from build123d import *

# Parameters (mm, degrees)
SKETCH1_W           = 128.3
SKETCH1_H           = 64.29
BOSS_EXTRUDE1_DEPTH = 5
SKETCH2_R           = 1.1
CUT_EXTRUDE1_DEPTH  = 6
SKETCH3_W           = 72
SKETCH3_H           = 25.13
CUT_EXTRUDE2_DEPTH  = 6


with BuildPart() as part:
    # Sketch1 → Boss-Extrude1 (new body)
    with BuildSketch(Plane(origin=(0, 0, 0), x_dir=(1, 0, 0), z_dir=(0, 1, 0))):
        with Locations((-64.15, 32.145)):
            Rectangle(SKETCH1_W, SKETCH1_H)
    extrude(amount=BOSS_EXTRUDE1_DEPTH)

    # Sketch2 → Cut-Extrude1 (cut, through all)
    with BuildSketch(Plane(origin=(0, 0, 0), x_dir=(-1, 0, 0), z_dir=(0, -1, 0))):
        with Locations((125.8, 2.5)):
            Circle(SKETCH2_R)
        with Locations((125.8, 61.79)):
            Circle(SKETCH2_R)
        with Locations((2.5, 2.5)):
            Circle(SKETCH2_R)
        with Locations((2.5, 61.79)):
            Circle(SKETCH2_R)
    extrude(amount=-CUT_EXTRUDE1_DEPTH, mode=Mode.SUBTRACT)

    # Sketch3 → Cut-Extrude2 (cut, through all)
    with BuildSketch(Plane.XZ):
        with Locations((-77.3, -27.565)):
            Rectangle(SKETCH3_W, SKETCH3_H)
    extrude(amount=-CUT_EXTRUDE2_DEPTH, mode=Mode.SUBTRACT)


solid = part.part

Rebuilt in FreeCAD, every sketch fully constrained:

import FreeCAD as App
import Part
import Sketcher


def add_polygon(sketch, points):
    """Adds a closed chain of lines whose ends are joined by coincident constraints."""
    first, n = sketch.GeometryCount, len(points)
    for a, b in zip(points, points[1:] + points[:1]):
        sketch.addGeometry(Part.LineSegment(App.Vector(*a, 0), App.Vector(*b, 0)), False)
    for i in range(n):
        sketch.addConstraint(Sketcher.Constraint("Coincident", first + i, 2, first + (i + 1) % n, 1))

doc = App.newDocument("Part")
body = doc.addObject("PartDesign::Body", "Body")

sketch1 = body.newObject("Sketcher::SketchObject", "Sketch")
sketch1.AttachmentSupport = (doc.getObject("XZ_Plane"), [""])
sketch1.MapMode = "FlatFace"
add_polygon(sketch1, [(-128, -64), (-128, 0), (0, 0), (0, -64)])
sketch1.addConstraint(Sketcher.Constraint("Vertical", 0))
sketch1.addConstraint(Sketcher.Constraint("Horizontal", 1))
sketch1.addConstraint(Sketcher.Constraint("Vertical", 2))
sketch1.addConstraint(Sketcher.Constraint("Horizontal", 3))
sketch1.addConstraint(Sketcher.Constraint("Coincident", 1, 2, -1, 1))
sketch1.addConstraint(Sketcher.Constraint("DistanceX", 1, 1, 1, 2, 128.3))
sketch1.addConstraint(Sketcher.Constraint("DistanceY", 0, 1, 0, 2, 64.29))
pad1 = body.newObject("PartDesign::Pad", "Pad")
pad1.Profile = sketch1
pad1.Length = 5
pad1.Reversed = True

sketch2 = body.newObject("Sketcher::SketchObject", "Sketch001")
sketch2.AttachmentSupport = (doc.getObject("XZ_Plane"), [""])
sketch2.MapMode = "FlatFace"
sketch2.addGeometry(Part.Circle(App.Vector(-125.8, -2.5, 0), App.Vector(0, 0, 1), 1.1), False)
sketch2.addGeometry(Part.Circle(App.Vector(-125.8, -61.8, 0), App.Vector(0, 0, 1), 1.1), False)
sketch2.addGeometry(Part.Circle(App.Vector(-2.5, -2.5, 0), App.Vector(0, 0, 1), 1.1), False)
sketch2.addGeometry(Part.Circle(App.Vector(-2.5, -61.8, 0), App.Vector(0, 0, 1), 1.1), False)
sketch2.addConstraint(Sketcher.Constraint("Equal", 0, 1))
sketch2.addConstraint(Sketcher.Constraint("Equal", 1, 2))
sketch2.addConstraint(Sketcher.Constraint("Equal", 2, 3))
sketch2.addConstraint(Sketcher.Constraint("Horizontal", 0, 3, 2, 3))
sketch2.addConstraint(Sketcher.Constraint("Horizontal", 1, 3, 3, 3))
sketch2.addConstraint(Sketcher.Constraint("Vertical", 0, 3, 1, 3))
sketch2.addConstraint(Sketcher.Constraint("Vertical", 2, 3, 3, 3))
sketch2.addConstraint(Sketcher.Constraint("Diameter", 0, 2.2))
sketch2.addConstraint(Sketcher.Constraint("DistanceX", 0, 3, -1, 1, 125.8))
sketch2.addConstraint(Sketcher.Constraint("DistanceY", 0, 3, -1, 1, 2.5))
sketch2.addConstraint(Sketcher.Constraint("DistanceX", 2, 3, -1, 1, 2.5))
sketch2.addConstraint(Sketcher.Constraint("DistanceY", 1, 3, -1, 1, 61.79))
pocket1 = body.newObject("PartDesign::Pocket", "Pocket")
pocket1.Profile = sketch2
pocket1.Type = "ThroughAll"

sketch3 = body.newObject("Sketcher::SketchObject", "Sketch002")
sketch3.AttachmentSupport = (doc.getObject("XZ_Plane"), [""])
sketch3.MapMode = "FlatFace"
add_polygon(sketch3, [(-113, -15), (-113, -40), (-41, -40), (-41, -15)])
sketch3.addConstraint(Sketcher.Constraint("Vertical", 0))
sketch3.addConstraint(Sketcher.Constraint("Horizontal", 1))
sketch3.addConstraint(Sketcher.Constraint("Vertical", 2))
sketch3.addConstraint(Sketcher.Constraint("Horizontal", 3))
sketch3.addConstraint(Sketcher.Constraint("DistanceX", 1, 1, 1, 2, 72.0))
sketch3.addConstraint(Sketcher.Constraint("DistanceY", 2, 2, -1, 1, 15.0))
sketch3.addConstraint(Sketcher.Constraint("DistanceY", 0, 2, 0, 1, 25.13))
sketch3.addConstraint(Sketcher.Constraint("DistanceX", 0, 2, -1, 1, 113.3))
pocket2 = body.newObject("PartDesign::Pocket", "Pocket001")
pocket2.Profile = sketch3
pocket2.Type = "ThroughAll"

doc.recompute()
